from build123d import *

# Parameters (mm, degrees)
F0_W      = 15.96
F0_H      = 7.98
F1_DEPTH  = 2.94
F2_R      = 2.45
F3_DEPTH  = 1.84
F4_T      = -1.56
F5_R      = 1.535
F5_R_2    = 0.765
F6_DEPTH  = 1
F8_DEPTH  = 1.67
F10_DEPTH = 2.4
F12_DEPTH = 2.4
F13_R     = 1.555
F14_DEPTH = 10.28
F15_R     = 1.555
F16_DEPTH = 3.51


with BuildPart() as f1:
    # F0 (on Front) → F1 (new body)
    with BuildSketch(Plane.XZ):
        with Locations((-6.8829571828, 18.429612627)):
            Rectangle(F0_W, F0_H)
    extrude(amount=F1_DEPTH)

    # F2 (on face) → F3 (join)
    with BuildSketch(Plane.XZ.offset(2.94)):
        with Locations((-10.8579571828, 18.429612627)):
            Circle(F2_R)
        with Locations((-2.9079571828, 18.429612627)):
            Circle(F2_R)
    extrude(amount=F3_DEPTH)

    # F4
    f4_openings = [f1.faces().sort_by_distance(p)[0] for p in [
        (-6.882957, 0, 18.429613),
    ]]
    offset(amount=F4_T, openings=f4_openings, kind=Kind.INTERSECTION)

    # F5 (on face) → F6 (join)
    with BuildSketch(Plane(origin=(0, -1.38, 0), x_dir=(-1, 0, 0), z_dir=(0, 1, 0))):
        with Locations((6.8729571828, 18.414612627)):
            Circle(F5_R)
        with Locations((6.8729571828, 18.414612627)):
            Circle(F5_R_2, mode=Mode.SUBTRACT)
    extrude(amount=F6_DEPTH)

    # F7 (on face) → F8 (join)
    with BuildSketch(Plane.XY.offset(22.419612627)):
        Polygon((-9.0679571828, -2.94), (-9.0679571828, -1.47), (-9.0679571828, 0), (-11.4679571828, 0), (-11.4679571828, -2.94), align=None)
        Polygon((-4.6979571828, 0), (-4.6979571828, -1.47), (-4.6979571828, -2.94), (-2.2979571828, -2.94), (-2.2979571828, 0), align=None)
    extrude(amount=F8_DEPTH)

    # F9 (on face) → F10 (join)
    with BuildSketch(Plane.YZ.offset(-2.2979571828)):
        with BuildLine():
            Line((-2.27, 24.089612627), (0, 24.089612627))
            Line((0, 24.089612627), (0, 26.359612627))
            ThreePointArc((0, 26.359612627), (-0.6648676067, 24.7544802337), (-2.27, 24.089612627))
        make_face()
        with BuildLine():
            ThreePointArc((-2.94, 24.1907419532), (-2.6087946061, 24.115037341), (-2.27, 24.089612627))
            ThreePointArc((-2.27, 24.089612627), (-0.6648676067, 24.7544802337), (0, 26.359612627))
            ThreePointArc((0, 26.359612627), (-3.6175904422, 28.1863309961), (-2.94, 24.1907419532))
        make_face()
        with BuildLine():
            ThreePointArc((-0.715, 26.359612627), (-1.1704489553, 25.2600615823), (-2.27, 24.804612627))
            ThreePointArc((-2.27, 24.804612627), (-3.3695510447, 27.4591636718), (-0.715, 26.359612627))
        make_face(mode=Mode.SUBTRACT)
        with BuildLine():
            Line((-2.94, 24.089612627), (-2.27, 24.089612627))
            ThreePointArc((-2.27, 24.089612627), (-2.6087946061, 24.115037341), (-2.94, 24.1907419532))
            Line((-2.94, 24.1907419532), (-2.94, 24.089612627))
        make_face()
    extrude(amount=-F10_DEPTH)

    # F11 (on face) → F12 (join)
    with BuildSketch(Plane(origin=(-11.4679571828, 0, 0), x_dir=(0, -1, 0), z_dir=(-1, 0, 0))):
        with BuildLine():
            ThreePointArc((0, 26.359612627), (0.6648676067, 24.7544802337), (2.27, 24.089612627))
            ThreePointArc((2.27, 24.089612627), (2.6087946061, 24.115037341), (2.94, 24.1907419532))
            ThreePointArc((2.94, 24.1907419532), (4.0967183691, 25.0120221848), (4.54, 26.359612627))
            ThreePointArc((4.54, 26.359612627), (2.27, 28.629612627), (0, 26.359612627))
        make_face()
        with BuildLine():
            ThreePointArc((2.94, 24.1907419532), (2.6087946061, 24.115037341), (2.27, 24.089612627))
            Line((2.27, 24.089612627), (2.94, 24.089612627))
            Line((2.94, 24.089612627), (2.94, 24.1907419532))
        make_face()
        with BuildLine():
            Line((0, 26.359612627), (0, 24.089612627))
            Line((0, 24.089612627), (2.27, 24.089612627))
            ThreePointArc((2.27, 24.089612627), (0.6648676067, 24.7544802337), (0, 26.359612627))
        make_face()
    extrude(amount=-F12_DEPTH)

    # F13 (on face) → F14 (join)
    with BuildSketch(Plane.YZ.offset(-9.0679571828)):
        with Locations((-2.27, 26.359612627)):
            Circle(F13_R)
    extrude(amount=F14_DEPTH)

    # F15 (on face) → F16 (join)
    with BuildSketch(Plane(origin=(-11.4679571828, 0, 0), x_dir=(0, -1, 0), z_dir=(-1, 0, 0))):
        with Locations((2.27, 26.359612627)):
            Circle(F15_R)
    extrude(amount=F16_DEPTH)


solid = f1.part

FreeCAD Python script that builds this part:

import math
import FreeCAD as App
import Part
import Sketcher
Q = App.Units.Quantity


def faces_at(feature, points):
    """Names of the faces that lie closest to the given points."""
    faces = feature.Shape.Faces
    near = lambda p: min(range(len(faces)), key=lambda i: faces[i].distToShape(Part.Vertex(*p))[0])
    return sorted({f"Face{near(p) + 1}" for p in points})


def add_polygon(sketch, points):
    """Adds a closed chain of lines whose ends are joined by coincident constraints."""
    first, n = sketch.GeometryCount, len(points)
    for a, b in zip(points, points[1:] + points[:1]):
        sketch.addGeometry(Part.LineSegment(App.Vector(*a, 0), App.Vector(*b, 0)), False)
    for i in range(n):
        sketch.addConstraint(Sketcher.Constraint("Coincident", first + i, 2, first + (i + 1) % n, 1))

doc = App.newDocument("Part")
body = doc.addObject("PartDesign::Body", "Body")

# Sketch on XZ plane
sketch1 = body.newObject("Sketcher::SketchObject", "Sketch")
sketch1.AttachmentSupport = (doc.getObject("XZ_Plane"), [""])
sketch1.MapMode = "FlatFace"
add_polygon(sketch1, [(-14.862957, 22.419613), (-14.862957, 14.439613), (1.097043, 14.439613), (1.097043, 22.419613)])  # lines 0-3
sketch1.addConstraint(Sketcher.Constraint("Vertical", 0))
sketch1.addConstraint(Sketcher.Constraint("Horizontal", 1))
sketch1.addConstraint(Sketcher.Constraint("Vertical", 2))
sketch1.addConstraint(Sketcher.Constraint("Horizontal", 3))
sketch1.addConstraint(Sketcher.Constraint("DistanceX", 1, 1, 1, 2, Q("15.96 mm")))
sketch1.addConstraint(Sketcher.Constraint("DistanceY", 0, 2, 0, 1, Q("7.98 mm")))
sketch1.addConstraint(Sketcher.Constraint("DistanceX", 0, 2, -1, 1, Q("14.862957 mm")))
sketch1.addConstraint(Sketcher.Constraint("DistanceY", -1, 1, 0, 2, Q("14.439613 mm")))
pad1 = body.newObject("PartDesign::Pad", "Pad")
pad1.Profile = sketch1
pad1.Length = 2.94

# Sketch on XZ plane
sketch2 = body.newObject("Sketcher::SketchObject", "Sketch001")
sketch2.AttachmentSupport = (doc.getObject("XZ_Plane"), [""])
sketch2.MapMode = "FlatFace"
sketch2.AttachmentOffset = App.Placement(App.Vector(0, 0, 2.94), App.Rotation())
sketch2.addGeometry(Part.Circle(App.Vector(-10.857957, 18.429613, 0), App.Vector(0, 0, 1), 2.45), False)
sketch2.addGeometry(Part.Circle(App.Vector(-2.907957, 18.429613, 0), App.Vector(0, 0, 1), 2.45), False)
sketch2.addConstraint(Sketcher.Constraint("Equal", 0, 1))
sketch2.addConstraint(Sketcher.Constraint("Horizontal", 0, 3, 1, 3))
sketch2.addConstraint(Sketcher.Constraint("Diameter", 0, Q("4.9 mm")))
sketch2.addConstraint(Sketcher.Constraint("DistanceX", 0, 3, 1, 3, Q("7.95 mm")))
sketch2.addConstraint(Sketcher.Constraint("DistanceX", 0, 3, -1, 1, Q("10.857957 mm")))
sketch2.addConstraint(Sketcher.Constraint("DistanceY", -1, 1, 0, 3, Q("18.429613 mm")))
pad2 = body.newObject("PartDesign::Pad", "Pad001")
pad2.Profile = sketch2
pad2.Length = 1.84
doc.recompute()

thickness = body.newObject("PartDesign::Thickness", "Thickness")
thickness.Base = (pad2, faces_at(pad2, [(-6.883, 0, 18.43)]))
thickness.Value = 1.56
thickness.Reversed = True
thickness.Join = "Intersection"

# Sketch on XZ plane
sketch3 = body.newObject("Sketcher::SketchObject", "Sketch002")
sketch3.AttachmentSupport = (doc.getObject("XZ_Plane"), [""])
sketch3.MapMode = "FlatFace"
sketch3.AttachmentOffset = App.Placement(App.Vector(0, 0, 1.38), App.Rotation())
sketch3.addGeometry(Part.Circle(App.Vector(-6.872957, 18.414613, 0), App.Vector(0, 0, 1), 1.535), False)
sketch3.addGeometry(Part.Circle(App.Vector(-6.872957, 18.414613, 0), App.Vector(0, 0, 1), 0.765), False)
sketch3.addConstraint(Sketcher.Constraint("Coincident", 1, 3, 0, 3))
sketch3.addConstraint(Sketcher.Constraint("Diameter", 0, Q("3.07 mm")))
sketch3.addConstraint(Sketcher.Constraint("Diameter", 1, Q("1.53 mm")))
sketch3.addConstraint(Sketcher.Constraint("DistanceX", 0, 3, -1, 1, Q("6.872957 mm")))
sketch3.addConstraint(Sketcher.Constraint("DistanceY", -1, 1, 0, 3, Q("18.414613 mm")))
pad3 = body.newObject("PartDesign::Pad", "Pad002")
pad3.Profile = sketch3
pad3.Length = 1
pad3.Reversed = True

# Sketch on XY plane
sketch4 = body.newObject("Sketcher::SketchObject", "Sketch003")
sketch4.AttachmentSupport = (doc.getObject("XY_Plane"), [""])
sketch4.MapMode = "FlatFace"
sketch4.AttachmentOffset = App.Placement(App.Vector(0, 0, 22.419613), App.Rotation())
add_polygon(sketch4, [(-9.067957, -2.94), (-9.067957, 0), (-11.467957, 0), (-11.467957, -2.94)])  # lines 0-3
add_polygon(sketch4, [(-4.697957, 0), (-4.697957, -2.94), (-2.297957, -2.94), (-2.297957, 0)])  # lines 4-7
sketch4.addConstraint(Sketcher.Constraint("Vertical", 0))
sketch4.addConstraint(Sketcher.Constraint("Horizontal", 1))
sketch4.addConstraint(Sketcher.Constraint("Vertical", 2))
sketch4.addConstraint(Sketcher.Constraint("Horizontal", 3))
sketch4.addConstraint(Sketcher.Constraint("Vertical", 4))
sketch4.addConstraint(Sketcher.Constraint("Horizontal", 5))
sketch4.addConstraint(Sketcher.Constraint("Vertical", 6))
sketch4.addConstraint(Sketcher.Constraint("Horizontal", 7))
sketch4.addConstraint(Sketcher.Constraint("PointOnObject", 0, 2, -1))
sketch4.addConstraint(Sketcher.Constraint("PointOnObject", 6, 2, -1))
sketch4.addConstraint(Sketcher.Constraint("Horizontal", 3, 2, 4, 2))
sketch4.addConstraint(Sketcher.Constraint("Equal", 3, 5))
sketch4.addConstraint(Sketcher.Constraint("DistanceX", 1, 2, 1, 1, Q("2.4 mm")))
sketch4.addConstraint(Sketcher.Constraint("DistanceY", 0, 1, 0, 2, Q("2.94 mm")))
sketch4.addConstraint(Sketcher.Constraint("DistanceX", 3, 2, 4, 2, Q("4.37 mm")))
sketch4.addConstraint(Sketcher.Constraint("DistanceX", 0, 2, -1, 1, Q("9.067957 mm")))
pad4 = body.newObject("PartDesign::Pad", "Pad003")
pad4.Profile = sketch4
pad4.Length = 1.67

# Sketch on YZ plane
sketch5 = body.newObject("Sketcher::SketchObject", "Sketch004")
sketch5.AttachmentSupport = (doc.getObject("YZ_Plane"), [""])
sketch5.MapMode = "FlatFace"
sketch5.AttachmentOffset = App.Placement(App.Vector(0, 0, -2.297957), App.Rotation())
sketch5.addGeometry(Part.LineSegment(App.Vector(0, 24.089613, 0), App.Vector(0, 26.359613, 0)), False)
sketch5.addGeometry(Part.ArcOfCircle(Part.Circle(App.Vector(-2.27, 26.359613, 0), App.Vector(0, 0, 1), 2.27), math.radians(0), math.radians(252.833217)), False)
sketch5.addGeometry(Part.LineSegment(App.Vector(-2.94, 24.190742, 0), App.Vector(-2.94, 24.089613, 0)), False)
sketch5.addGeometry(Part.LineSegment(App.Vector(-2.94, 24.089613, 0), App.Vector(0, 24.089613, 0)), False)
sketch5.addGeometry(Part.ArcOfCircle(Part.Circle(App.Vector(-2.27, 26.359613, 0), App.Vector(0, 0, 1), 1.555), math.radians(0), math.radians(270)), False)
sketch5.addGeometry(Part.ArcOfCircle(Part.Circle(App.Vector(-2.27, 26.359613, 0), App.Vector(0, 0, 1), 1.555), math.radians(-90), math.radians(0)), False)
sketch5.addConstraint(Sketcher.Constraint("Tangent", 0, 2, 1, 1))
sketch5.addConstraint(Sketcher.Constraint("Coincident", 1, 2, 2, 1))
sketch5.addConstraint(Sketcher.Constraint("Coincident", 2, 2, 3, 1))
sketch5.addConstraint(Sketcher.Constraint("Coincident", 3, 2, 0, 1))
sketch5.addConstraint(Sketcher.Constraint("Tangent", 4, 1, 5, 2))
sketch5.addConstraint(Sketcher.Constraint("Coincident", 5, 1, 4, 2))
sketch5.addConstraint(Sketcher.Constraint("Vertical", 0))
sketch5.addConstraint(Sketcher.Constraint("Vertical", 2))
sketch5.addConstraint(Sketcher.Constraint("Horizontal", 3))
sketch5.addConstraint(Sketcher.Constraint("Coincident", 4, 3, 1, 3))
sketch5.addConstraint(Sketcher.Constraint("PointOnObject", 0, 2, -2))
sketch5.addConstraint(Sketcher.Constraint("Horizontal", 0, 2, 4, 1))
sketch5.addConstraint(Sketcher.Constraint("Vertical", 4, 3, 5, 1))
sketch5.addConstraint(Sketcher.Constraint("Radius", 1, Q("2.27 mm")))
sketch5.addConstraint(Sketcher.Constraint("Radius", 4, Q("1.555 mm")))
sketch5.addConstraint(Sketcher.Constraint("DistanceX", 3, 1, 3, 2, Q("2.94 mm")))
sketch5.addConstraint(Sketcher.Constraint("DistanceY", 0, 1, 0, 2, Q("2.27 mm")))
sketch5.addConstraint(Sketcher.Constraint("DistanceY", -1, 1, 1, 2, Q("24.190742 mm")))
pad5 = body.newObject("PartDesign::Pad", "Pad004")
pad5.Profile = sketch5
pad5.Length = 2.4
pad5.Reversed = True

# Sketch on YZ plane
sketch6 = body.newObject("Sketcher::SketchObject", "Sketch005")
sketch6.AttachmentSupport = (doc.getObject("YZ_Plane"), [""])
sketch6.MapMode = "FlatFace"
sketch6.AttachmentOffset = App.Placement(App.Vector(0, 0, -11.467957), App.Rotation())
sketch6.addGeometry(Part.LineSegment(App.Vector(-2.94, 24.089613, 0), App.Vector(-2.94, 24.190742, 0)), False)
sketch6.addGeometry(Part.ArcOfCircle(Part.Circle(App.Vector(-2.27, 26.359613, 0), App.Vector(0, 0, 1), 2.27), math.radians(180), math.radians(252.833217)), False)
sketch6.addGeometry(Part.ArcOfCircle(Part.Circle(App.Vector(-2.27, 26.359613, 0), App.Vector(0, 0, 1), 2.27), math.radians(0), math.radians(180)), False)
sketch6.addGeometry(Part.LineSegment(App.Vector(0, 26.359613, 0), App.Vector(0, 24.089613, 0)), False)
sketch6.addGeometry(Part.LineSegment(App.Vector(0, 24.089613, 0), App.Vector(-2.94, 24.089613, 0)), False)
sketch6.addConstraint(Sketcher.Constraint("Coincident", 0, 2, 1, 2))
sketch6.addConstraint(Sketcher.Constraint("Tangent", 1, 1, 2, 2))
sketch6.addConstraint(Sketcher.Constraint("Tangent", 2, 1, 3, 1))
sketch6.addConstraint(Sketcher.Constraint("Coincident", 3, 2, 4, 1))
sketch6.addConstraint(Sketcher.Constraint("Coincident", 4, 2, 0, 1))
sketch6.addConstraint(Sketcher.Constraint("Vertical", 0))
sketch6.addConstraint(Sketcher.Constraint("Vertical", 3))
sketch6.addConstraint(Sketcher.Constraint("Horizontal", 4))
sketch6.addConstraint(Sketcher.Constraint("Equal", 1, 2))
sketch6.addConstraint(Sketcher.Constraint("PointOnObject", 2, 1, -2))
sketch6.addConstraint(Sketcher.Constraint("Horizontal", 2, 3, 1, 1))
sketch6.addConstraint(Sketcher.Constraint("Radius", 1, Q("2.27 mm")))
sketch6.addConstraint(Sketcher.Constraint("DistanceX", 4, 2, 4, 1, Q("2.94 mm")))
sketch6.addConstraint(Sketcher.Constraint("DistanceY", 3, 2, 3, 1, Q("2.27 mm")))
sketch6.addConstraint(Sketcher.Constraint("DistanceY", -1, 1, 0, 2, Q("24.190742 mm")))
pad6 = body.newObject("PartDesign::Pad", "Pad005")
pad6.Profile = sketch6
pad6.Length = 2.4

# Sketch on YZ plane
sketch7 = body.newObject("Sketcher::SketchObject", "Sketch006")
sketch7.AttachmentSupport = (doc.getObject("YZ_Plane"), [""])
sketch7.MapMode = "FlatFace"
sketch7.AttachmentOffset = App.Placement(App.Vector(0, 0, -9.067957), App.Rotation())
sketch7.addGeometry(Part.Circle(App.Vector(-2.27, 26.359613, 0), App.Vector(0, 0, 1), 1.555), False)
sketch7.addConstraint(Sketcher.Constraint("Diameter", 0, Q("3.11 mm")))
sketch7.addConstraint(Sketcher.Constraint("DistanceX", 0, 3, -1, 1, Q("2.27 mm")))
sketch7.addConstraint(Sketcher.Constraint("DistanceY", -1, 1, 0, 3, Q("26.359613 mm")))
pad7 = body.newObject("PartDesign::Pad", "Pad006")
pad7.Profile = sketch7
pad7.Length = 10.28

# Sketch on YZ plane
sketch8 = body.newObject("Sketcher::SketchObject", "Sketch007")
sketch8.AttachmentSupport = (doc.getObject("YZ_Plane"), [""])
sketch8.MapMode = "FlatFace"
sketch8.AttachmentOffset = App.Placement(App.Vector(0, 0, -11.467957), App.Rotation())
sketch8.addGeometry(Part.Circle(App.Vector(-2.27, 26.359613, 0), App.Vector(0, 0, 1), 1.555), False)
sketch8.addConstraint(Sketcher.Constraint("Diameter", 0, Q("3.11 mm")))
sketch8.addConstraint(Sketcher.Constraint("DistanceX", 0, 3, -1, 1, Q("2.27 mm")))
sketch8.addConstraint(Sketcher.Constraint("DistanceY", -1, 1, 0, 3, Q("26.359613 mm")))
pad8 = body.newObject("PartDesign::Pad", "Pad007")
pad8.Profile = sketch8
pad8.Length = 3.51
pad8.Reversed = True

doc.recompute()
